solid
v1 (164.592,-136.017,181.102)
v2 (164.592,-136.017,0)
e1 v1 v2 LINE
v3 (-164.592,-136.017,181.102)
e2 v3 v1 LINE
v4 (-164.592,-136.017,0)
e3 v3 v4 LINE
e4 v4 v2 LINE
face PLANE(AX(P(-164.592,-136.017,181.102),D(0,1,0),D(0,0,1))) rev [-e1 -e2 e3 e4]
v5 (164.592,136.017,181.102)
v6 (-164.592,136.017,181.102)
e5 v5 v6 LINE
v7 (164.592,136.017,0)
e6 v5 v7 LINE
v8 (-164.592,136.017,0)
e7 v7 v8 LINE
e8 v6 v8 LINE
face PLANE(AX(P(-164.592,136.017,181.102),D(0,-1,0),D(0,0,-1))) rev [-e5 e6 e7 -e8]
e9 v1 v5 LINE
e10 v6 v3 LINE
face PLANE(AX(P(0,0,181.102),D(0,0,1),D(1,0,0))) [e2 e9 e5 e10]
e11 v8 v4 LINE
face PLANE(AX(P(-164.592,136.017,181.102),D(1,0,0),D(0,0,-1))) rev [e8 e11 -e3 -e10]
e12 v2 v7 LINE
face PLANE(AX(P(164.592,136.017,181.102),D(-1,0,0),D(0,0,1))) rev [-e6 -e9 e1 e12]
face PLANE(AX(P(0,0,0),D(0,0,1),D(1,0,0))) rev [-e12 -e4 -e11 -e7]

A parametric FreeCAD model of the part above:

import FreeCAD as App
import Part
import Sketcher

V = App.Vector
Q = App.Units.Quantity

doc = App.newDocument("Part")
params = doc.addObject("Spreadsheet::Sheet", "Params")
for row, (alias, value) in enumerate([
    ("sketch1_width", "12.96 in"),
    ("sketch1_height", "10.71 in"),
    ("pad1_length", "7.13 in"),
], start=1):
    params.set(f"A{row}", alias)
    params.set(f"B{row}", "=" + value)
    params.setAlias(f"B{row}", alias)

body = doc.addObject("PartDesign::Body", "Body")

# Sketch on XY plane
sketch1 = doc.addObject("Sketcher::SketchObject", "Sketch")
body.addObject(sketch1)
sketch1.AttachmentSupport = (doc.XY_Plane, [""])
sketch1.MapMode = "FlatFace"
sketch1.addGeometry([
    Part.LineSegment(V(-164.592, 136.017, 0), V(-164.592, -136.017, 0)),
    Part.LineSegment(V(-164.592, -136.017, 0), V(164.592, -136.017, 0)),
    Part.LineSegment(V(164.592, -136.017, 0), V(164.592, 136.017, 0)),
    Part.LineSegment(V(164.592, 136.017, 0), V(-164.592, 136.017, 0)),
], False)
sketch1.addConstraint([
    Sketcher.Constraint("Coincident", 0, 2, 1, 1),
    Sketcher.Constraint("Coincident", 1, 2, 2, 1),
    Sketcher.Constraint("Coincident", 2, 2, 3, 1),
    Sketcher.Constraint("Coincident", 3, 2, 0, 1),
    Sketcher.Constraint("Vertical", 0),
    Sketcher.Constraint("Horizontal", 1),
    Sketcher.Constraint("Vertical", 2),
    Sketcher.Constraint("Horizontal", 3),
    Sketcher.Constraint("Symmetric", 0, 2, 2, 2, -1, 1),
    Sketcher.Constraint("DistanceX", 1, 1, 1, 2, Q("12.96 in")),
    Sketcher.Constraint("DistanceY", 0, 2, 0, 1, Q("10.71 in")),
])
sketch1.setExpression("Constraints[9]", "Params.sketch1_width")
sketch1.setExpression("Constraints[10]", "Params.sketch1_height")
pad1 = doc.addObject("PartDesign::Pad", "Pad")
body.addObject(pad1)
pad1.Profile = sketch1
pad1.setExpression("Length", "Params.pad1_length")

doc.recompute()
